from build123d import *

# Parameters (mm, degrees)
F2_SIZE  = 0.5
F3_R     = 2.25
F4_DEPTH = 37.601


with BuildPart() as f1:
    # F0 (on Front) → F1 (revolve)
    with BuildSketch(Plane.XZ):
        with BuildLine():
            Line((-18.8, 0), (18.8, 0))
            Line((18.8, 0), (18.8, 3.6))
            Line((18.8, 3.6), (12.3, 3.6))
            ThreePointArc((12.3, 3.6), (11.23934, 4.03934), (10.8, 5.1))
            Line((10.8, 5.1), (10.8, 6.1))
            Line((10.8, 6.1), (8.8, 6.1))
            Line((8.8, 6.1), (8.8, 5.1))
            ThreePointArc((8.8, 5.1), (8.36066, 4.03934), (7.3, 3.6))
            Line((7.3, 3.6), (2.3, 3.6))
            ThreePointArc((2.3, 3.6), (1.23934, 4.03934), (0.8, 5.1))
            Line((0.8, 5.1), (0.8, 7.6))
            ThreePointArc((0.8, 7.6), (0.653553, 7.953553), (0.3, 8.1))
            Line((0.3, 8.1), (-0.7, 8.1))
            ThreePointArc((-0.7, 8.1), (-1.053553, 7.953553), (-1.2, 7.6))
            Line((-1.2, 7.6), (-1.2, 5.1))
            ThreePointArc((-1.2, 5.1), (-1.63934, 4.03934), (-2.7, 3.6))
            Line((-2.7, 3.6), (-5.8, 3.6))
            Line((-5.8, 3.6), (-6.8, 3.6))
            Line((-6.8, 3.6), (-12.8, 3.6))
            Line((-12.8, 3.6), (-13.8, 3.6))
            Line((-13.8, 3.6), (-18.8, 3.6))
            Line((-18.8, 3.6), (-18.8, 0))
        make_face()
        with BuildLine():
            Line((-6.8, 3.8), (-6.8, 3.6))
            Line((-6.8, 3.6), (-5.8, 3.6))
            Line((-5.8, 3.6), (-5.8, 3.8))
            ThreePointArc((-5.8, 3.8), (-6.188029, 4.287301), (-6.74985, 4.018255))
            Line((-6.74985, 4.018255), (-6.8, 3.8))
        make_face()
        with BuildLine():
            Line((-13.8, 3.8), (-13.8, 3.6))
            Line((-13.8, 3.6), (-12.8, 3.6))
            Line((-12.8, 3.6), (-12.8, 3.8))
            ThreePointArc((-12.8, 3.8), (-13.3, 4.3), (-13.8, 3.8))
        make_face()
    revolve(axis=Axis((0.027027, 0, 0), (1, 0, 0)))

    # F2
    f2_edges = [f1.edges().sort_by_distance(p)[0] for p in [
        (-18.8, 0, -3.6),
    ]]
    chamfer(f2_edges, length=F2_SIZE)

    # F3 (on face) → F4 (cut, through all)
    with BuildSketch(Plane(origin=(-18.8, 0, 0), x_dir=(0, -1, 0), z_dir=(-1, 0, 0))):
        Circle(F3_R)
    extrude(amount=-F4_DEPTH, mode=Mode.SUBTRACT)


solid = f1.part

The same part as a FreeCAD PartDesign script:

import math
import FreeCAD as App
import Part
import Sketcher
from FreeCAD import Vector


def edges_at(feature, points):
    """Names of the edges that pass closest to the given points."""
    edges = feature.Shape.Edges
    near = lambda p: min(range(len(edges)), key=lambda i: edges[i].distToShape(Part.Vertex(*p))[0])
    return sorted({f"Edge{near(p) + 1}" for p in points})

doc = App.newDocument("Part")
params = doc.addObject("Spreadsheet::Sheet", "Params")
for row, (alias, value) in enumerate([
    ("sketch1_radius", "1.500001 mm"),
    ("sketch1_radius2", "0.500001 mm"),
    ("sketch1_width", "2 mm"),
    ("sketch1_width2", "5 mm"),
    ("sketch1_width3", "1 mm"),
    ("revolution_angle", "360 deg"),
    ("chamfer_size", "0.5 mm"),
    ("sketch2_diameter", "4.5 mm"),
], start=1):
    params.set(f"A{row}", alias)
    params.set(f"B{row}", "=" + value)
    params.setAlias(f"B{row}", alias)

body = doc.addObject("PartDesign::Body", "Body")

sketch1 = body.newObject("Sketcher::SketchObject", "Sketch")
sketch1.AttachmentSupport = (doc.getObject("XZ_Plane"), [""])
sketch1.MapMode = "FlatFace"
sketch1.addGeometry([
    Part.LineSegment(Vector(-18.8, 0, 0), Vector(18.8, 0, 0)),
    Part.LineSegment(Vector(18.8, 0, 0), Vector(18.8, 3.6, 0)),
    Part.LineSegment(Vector(18.8, 3.6, 0), Vector(12.3, 3.6, 0)),
    Part.ArcOfCircle(Part.Circle(Vector(12.3, 5.1, 0), Vector(0, 0, 1), 1.5), math.radians(-180), math.radians(-90)),
    Part.LineSegment(Vector(10.8, 5.1, 0), Vector(10.8, 6.1, 0)),
    Part.LineSegment(Vector(10.8, 6.1, 0), Vector(8.8, 6.1, 0)),
    Part.LineSegment(Vector(8.8, 6.1, 0), Vector(8.8, 5.1, 0)),
    Part.ArcOfCircle(Part.Circle(Vector(7.3, 5.1, 0), Vector(0, 0, 1), 1.5), math.radians(-90), math.radians(0)),
    Part.LineSegment(Vector(7.3, 3.6, 0), Vector(2.3, 3.6, 0)),
    Part.ArcOfCircle(Part.Circle(Vector(2.3, 5.1, 0), Vector(0, 0, 1), 1.5), math.radians(-180), math.radians(-90)),
    Part.LineSegment(Vector(0.8, 5.1, 0), Vector(0.8, 7.6, 0)),
    Part.ArcOfCircle(Part.Circle(Vector(0.3, 7.6, 0), Vector(0, 0, 1), 0.5), math.radians(0), math.radians(90)),
    Part.LineSegment(Vector(0.3, 8.1, 0), Vector(-0.7, 8.1, 0)),
    Part.ArcOfCircle(Part.Circle(Vector(-0.7, 7.6, 0), Vector(0, 0, 1), 0.5), math.radians(90), math.radians(180)),
    Part.LineSegment(Vector(-1.2, 7.6, 0), Vector(-1.2, 5.1, 0)),
    Part.ArcOfCircle(Part.Circle(Vector(-2.7, 5.1, 0), Vector(0, 0, 1), 1.5), math.radians(-90), math.radians(0)),
    Part.LineSegment(Vector(-2.7, 3.6, 0), Vector(-5.8, 3.6, 0)),
    Part.LineSegment(Vector(-5.8, 3.6, 0), Vector(-5.8, 3.8, 0)),
    Part.ArcOfCircle(Part.Circle(Vector(-6.3, 3.8, 0), Vector(0, 0, 1), 0.5), math.radians(0), math.radians(154)),
    Part.LineSegment(Vector(-6.75, 4.02, 0), Vector(-6.8, 3.8, 0)),
    Part.LineSegment(Vector(-6.8, 3.8, 0), Vector(-6.8, 3.6, 0)),
    Part.LineSegment(Vector(-6.8, 3.6, 0), Vector(-12.8, 3.6, 0)),
    Part.LineSegment(Vector(-12.8, 3.6, 0), Vector(-12.8, 3.8, 0)),
    Part.ArcOfCircle(Part.Circle(Vector(-13.3, 3.8, 0), Vector(0, 0, 1), 0.5), math.radians(0), math.radians(180)),
    Part.LineSegment(Vector(-13.8, 3.8, 0), Vector(-13.8, 3.6, 0)),
    Part.LineSegment(Vector(-13.8, 3.6, 0), Vector(-18.8, 3.6, 0)),
    Part.LineSegment(Vector(-18.8, 3.6, 0), Vector(-18.8, 0, 0)),
], False)
sketch1.addConstraint([
    Sketcher.Constraint("Coincident", 0, 2, 1, 1),
    Sketcher.Constraint("Coincident", 1, 2, 2, 1),
    Sketcher.Constraint("Tangent", 2, 2, 3, 2),
    Sketcher.Constraint("Tangent", 3, 1, 4, 1),
    Sketcher.Constraint("Coincident", 4, 2, 5, 1),
    Sketcher.Constraint("Coincident", 5, 2, 6, 1),
    Sketcher.Constraint("Tangent", 6, 2, 7, 2),
    Sketcher.Constraint("Tangent", 7, 1, 8, 1),
    Sketcher.Constraint("Tangent", 8, 2, 9, 2),
    Sketcher.Constraint("Tangent", 9, 1, 10, 1),
    Sketcher.Constraint("Coincident", 10, 2, 11, 1),
    Sketcher.Constraint("Coincident", 11, 2, 12, 1),
    Sketcher.Constraint("Coincident", 12, 2, 13, 1),
    Sketcher.Constraint("Coincident", 13, 2, 14, 1),
    Sketcher.Constraint("Tangent", 14, 2, 15, 2),
    Sketcher.Constraint("Tangent", 15, 1, 16, 1),
    Sketcher.Constraint("Coincident", 16, 2, 17, 1),
    Sketcher.Constraint("Tangent", 17, 2, 18, 1),
    Sketcher.Constraint("Coincident", 18, 2, 19, 1),
    Sketcher.Constraint("Coincident", 19, 2, 20, 1),
    Sketcher.Constraint("Coincident", 20, 2, 21, 1),
    Sketcher.Constraint("Coincident", 21, 2, 22, 1),
    Sketcher.Constraint("Tangent", 22, 2, 23, 1),
    Sketcher.Constraint("Tangent", 23, 2, 24, 1),
    Sketcher.Constraint("Coincident", 24, 2, 25, 1),
    Sketcher.Constraint("Coincident", 25, 2, 26, 1),
    Sketcher.Constraint("Coincident", 26, 2, 0, 1),
    Sketcher.Constraint("Horizontal", 0),
    Sketcher.Constraint("Vertical", 1),
    Sketcher.Constraint("Horizontal", 2),
    Sketcher.Constraint("Vertical", 4),
    Sketcher.Constraint("Horizontal", 5),
    Sketcher.Constraint("Vertical", 6),
    Sketcher.Constraint("Horizontal", 8),
    Sketcher.Constraint("Vertical", 10),
    Sketcher.Constraint("Horizontal", 12),
    Sketcher.Constraint("Vertical", 14),
    Sketcher.Constraint("Horizontal", 16),
    Sketcher.Constraint("Vertical", 17),
    Sketcher.Constraint("Vertical", 20),
    Sketcher.Constraint("Horizontal", 21),
    Sketcher.Constraint("Vertical", 22),
    Sketcher.Constraint("Vertical", 24),
    Sketcher.Constraint("Horizontal", 25),
    Sketcher.Constraint("Vertical", 26),
    Sketcher.Constraint("Equal", 3, 7),
    Sketcher.Constraint("Equal", 7, 9),
    Sketcher.Constraint("Equal", 11, 13),
    Sketcher.Constraint("Equal", 9, 15),
    Sketcher.Constraint("Equal", 13, 18),
    Sketcher.Constraint("Equal", 18, 23),
    Sketcher.Constraint("Symmetric", 0, 2, 26, 2, -1, 1),
    Sketcher.Constraint("Horizontal", 3, 3, 7, 3),
    Sketcher.Constraint("Horizontal", 9, 3, 15, 3),
    Sketcher.Constraint("Horizontal", 18, 3, 23, 3),
    Sketcher.Constraint("Horizontal", 13, 3, 10, 2),
    Sketcher.Constraint("Horizontal", 10, 2, 13, 2),
    Sketcher.Constraint("Horizontal", 17, 2, 19, 2),
    Sketcher.Constraint("Horizontal", 16, 2, 20, 2),
    Sketcher.Constraint("Horizontal", 21, 2, 24, 2),
    Sketcher.Constraint("Vertical", 13, 3, 12, 2),
    Sketcher.Constraint("Equal", 8, 25),
    Sketcher.Constraint("Equal", 12, 4),
    Sketcher.Constraint("Radius", 3, 1.500001),
    Sketcher.Constraint("Radius", 11, 0.500001),
    Sketcher.Constraint("DistanceX", 5, 2, 5, 1, 2.0),
    Sketcher.Constraint("DistanceX", 8, 2, 8, 1, 5.0),
    Sketcher.Constraint("DistanceX", 12, 2, 12, 1, 1.0),
    Sketcher.Constraint("DistanceX", 21, 2, 21, 1, 6.0),
    Sketcher.Constraint("DistanceX", 0, 1, 0, 2, 37.6),
    Sketcher.Constraint("DistanceX", 2, 2, 2, 1, 6.5),
    Sketcher.Constraint("DistanceX", 16, 2, 16, 1, 3.1),
    Sketcher.Constraint("DistanceY", 1, 1, 1, 2, 3.6),
    Sketcher.Constraint("DistanceY", 10, 1, 10, 2, 2.5),
    Sketcher.Constraint("DistanceY", 17, 1, 17, 2, 0.2),
    Sketcher.Constraint("DistanceX", 13, 3, 9, 3, 2.999999),
    Sketcher.Constraint("DistanceX", 18, 2, -1, 1, 6.74985),
])
sketch1.setExpression("Constraints[63]", "Params.sketch1_radius")
sketch1.setExpression("Constraints[64]", "Params.sketch1_radius2")
sketch1.setExpression("Constraints[65]", "Params.sketch1_width")
sketch1.setExpression("Constraints[66]", "Params.sketch1_width2")
sketch1.setExpression("Constraints[67]", "Params.sketch1_width3")
revolution = body.newObject("PartDesign::Revolution", "Revolution")
revolution.Profile = sketch1
revolution.ReferenceAxis = (sketch1, ["H_Axis"])
revolution.setExpression("Angle", "Params.revolution_angle")
doc.recompute()

chamfer = body.newObject("PartDesign::Chamfer", "Chamfer")
chamfer.Base = (revolution, edges_at(revolution, [(-18.8, 0, -3.6)]))
chamfer.setExpression("Size", "Params.chamfer_size")

sketch2 = body.newObject("Sketcher::SketchObject", "Sketch001")
sketch2.AttachmentSupport = (doc.getObject("YZ_Plane"), [""])
sketch2.MapMode = "FlatFace"
sketch2.AttachmentOffset = App.Placement(Vector(0, 0, -18.8), App.Rotation())
sketch2.addGeometry(Part.Circle(Vector(0, 0, 0), Vector(0, 0, 1), 2.2), False)
sketch2.addConstraint([
    Sketcher.Constraint("Coincident", 0, 3, -1, 1),
    Sketcher.Constraint("Diameter", 0, 4.5),
])
sketch2.setExpression("Constraints[1]", "Params.sketch2_diameter")
pocket1 = body.newObject("PartDesign::Pocket", "Pocket")
pocket1.Profile = sketch2
pocket1.Type = "ThroughAll"
pocket1.Reversed = True

doc.recompute()
